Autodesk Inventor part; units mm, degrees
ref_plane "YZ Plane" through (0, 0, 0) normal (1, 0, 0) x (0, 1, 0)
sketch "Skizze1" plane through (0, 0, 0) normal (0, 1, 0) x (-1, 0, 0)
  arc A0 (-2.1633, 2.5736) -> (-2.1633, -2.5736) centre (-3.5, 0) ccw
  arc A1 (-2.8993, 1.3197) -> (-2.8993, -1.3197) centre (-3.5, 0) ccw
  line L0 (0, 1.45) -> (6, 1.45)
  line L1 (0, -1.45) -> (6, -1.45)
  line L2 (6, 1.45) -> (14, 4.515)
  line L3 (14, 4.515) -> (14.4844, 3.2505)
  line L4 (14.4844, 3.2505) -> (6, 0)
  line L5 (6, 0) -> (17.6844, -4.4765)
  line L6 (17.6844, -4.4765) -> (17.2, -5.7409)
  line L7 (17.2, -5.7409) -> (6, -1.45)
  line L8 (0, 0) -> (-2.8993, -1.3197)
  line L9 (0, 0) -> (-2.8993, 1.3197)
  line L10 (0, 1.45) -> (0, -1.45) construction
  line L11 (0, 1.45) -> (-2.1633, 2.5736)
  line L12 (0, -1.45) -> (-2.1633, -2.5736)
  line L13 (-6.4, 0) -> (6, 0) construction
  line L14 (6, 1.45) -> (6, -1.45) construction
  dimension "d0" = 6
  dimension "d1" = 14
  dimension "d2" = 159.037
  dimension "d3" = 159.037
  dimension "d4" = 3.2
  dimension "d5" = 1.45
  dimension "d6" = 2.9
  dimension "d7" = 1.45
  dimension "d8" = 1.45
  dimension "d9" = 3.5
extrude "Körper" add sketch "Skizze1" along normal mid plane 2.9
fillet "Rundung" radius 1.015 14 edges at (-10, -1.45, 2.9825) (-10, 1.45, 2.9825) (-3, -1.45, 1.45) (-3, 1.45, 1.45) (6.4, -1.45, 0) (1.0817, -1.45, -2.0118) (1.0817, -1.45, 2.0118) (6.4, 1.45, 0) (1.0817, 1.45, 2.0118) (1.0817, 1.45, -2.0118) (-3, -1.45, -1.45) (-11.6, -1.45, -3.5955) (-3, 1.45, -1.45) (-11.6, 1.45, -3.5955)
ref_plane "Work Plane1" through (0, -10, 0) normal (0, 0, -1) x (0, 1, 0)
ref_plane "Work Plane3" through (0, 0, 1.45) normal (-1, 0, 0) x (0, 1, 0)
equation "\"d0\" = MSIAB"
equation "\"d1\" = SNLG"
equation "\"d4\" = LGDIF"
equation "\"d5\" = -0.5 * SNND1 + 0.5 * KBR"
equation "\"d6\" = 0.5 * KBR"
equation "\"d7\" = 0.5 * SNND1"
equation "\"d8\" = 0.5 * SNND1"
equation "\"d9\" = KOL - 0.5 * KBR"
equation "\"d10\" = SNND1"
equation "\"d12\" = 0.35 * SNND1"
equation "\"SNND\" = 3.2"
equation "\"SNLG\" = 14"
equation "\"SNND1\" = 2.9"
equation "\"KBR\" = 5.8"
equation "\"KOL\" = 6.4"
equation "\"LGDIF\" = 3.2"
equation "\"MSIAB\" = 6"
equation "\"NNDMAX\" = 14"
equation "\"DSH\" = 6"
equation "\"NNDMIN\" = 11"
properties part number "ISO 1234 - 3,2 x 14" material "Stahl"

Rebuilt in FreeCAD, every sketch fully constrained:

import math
import FreeCAD as App
import Part
import Sketcher

V = App.Vector
Q = App.Units.Quantity


def edges_at(feature, points):
    """Names of the edges that pass closest to the given points."""
    edges = feature.Shape.Edges
    near = lambda p: min(range(len(edges)), key=lambda i: edges[i].distToShape(Part.Vertex(*p))[0])
    return sorted({f"Edge{near(p) + 1}" for p in points})

doc = App.newDocument("Part")
body = doc.addObject("PartDesign::Body", "Body")

sketch1 = doc.addObject("Sketcher::SketchObject", "Sketch")
body.addObject(sketch1)
sketch1.AttachmentSupport = (doc.XZ_Plane, [""])
sketch1.MapMode = "FlatFace"
sketch1.addGeometry(Part.LineSegment(V(0, 1.45, 0), V(2.1633, 2.5736, 0)), False)
sketch1.addGeometry(Part.ArcOfCircle(Part.Circle(V(3.5, 0, 0), V(0, 0, 1), 2.900032), math.radians(-117.446877), math.radians(117.446877)), False)
sketch1.addGeometry(Part.LineSegment(V(2.1633, -2.5736, 0), V(0, -1.45, 0)), False)
sketch1.addGeometry(Part.LineSegment(V(0, -1.45, 0), V(-6, -1.45, 0)), False)
sketch1.addGeometry(Part.LineSegment(V(-6, -1.45, 0), V(-17.2, -5.7409, 0)), False)
sketch1.addGeometry(Part.LineSegment(V(-17.2, -5.7409, 0), V(-17.6844, -4.4765, 0)), False)
sketch1.addGeometry(Part.LineSegment(V(-17.6844, -4.4765, 0), V(-6, 0, 0)), False)
sketch1.addGeometry(Part.LineSegment(V(-6, 0, 0), V(-14.4844, 3.2505, 0)), False)
sketch1.addGeometry(Part.LineSegment(V(-14.4844, 3.2505, 0), V(-14, 4.515, 0)), False)
sketch1.addGeometry(Part.LineSegment(V(-14, 4.515, 0), V(-6, 1.45, 0)), False)
sketch1.addGeometry(Part.LineSegment(V(-6, 1.45, 0), V(0, 1.45, 0)), False)
sketch1.addGeometry(Part.ArcOfCircle(Part.Circle(V(3.5, 0, 0), V(0, 0, 1), 1.449982), math.radians(-114.474041), math.radians(114.474041)), False)
sketch1.addGeometry(Part.LineSegment(V(2.8993, 1.3197, 0), V(0, 0, 0)), False)
sketch1.addGeometry(Part.LineSegment(V(0, 0, 0), V(2.8993, -1.3197, 0)), False)
sketch1.addConstraint(Sketcher.Constraint("Tangent", 0, 2, 1, 2))
sketch1.addConstraint(Sketcher.Constraint("Tangent", 1, 1, 2, 1))
sketch1.addConstraint(Sketcher.Constraint("Coincident", 2, 2, 3, 1))
sketch1.addConstraint(Sketcher.Constraint("Coincident", 3, 2, 4, 1))
sketch1.addConstraint(Sketcher.Constraint("Coincident", 4, 2, 5, 1))
sketch1.addConstraint(Sketcher.Constraint("Coincident", 5, 2, 6, 1))
sketch1.addConstraint(Sketcher.Constraint("Coincident", 6, 2, 7, 1))
sketch1.addConstraint(Sketcher.Constraint("Coincident", 7, 2, 8, 1))
sketch1.addConstraint(Sketcher.Constraint("Coincident", 8, 2, 9, 1))
sketch1.addConstraint(Sketcher.Constraint("Coincident", 9, 2, 10, 1))
sketch1.addConstraint(Sketcher.Constraint("Coincident", 10, 2, 0, 1))
sketch1.addConstraint(Sketcher.Constraint("Tangent", 11, 2, 12, 1))
sketch1.addConstraint(Sketcher.Constraint("Coincident", 12, 2, 13, 1))
sketch1.addConstraint(Sketcher.Constraint("Tangent", 13, 2, 11, 1))
sketch1.addConstraint(Sketcher.Constraint("Horizontal", 3))
sketch1.addConstraint(Sketcher.Constraint("Horizontal", 10))
sketch1.addConstraint(Sketcher.Constraint("Coincident", 12, 2, -1, 1))
sketch1.addConstraint(Sketcher.Constraint("Coincident", 11, 3, 1, 3))
sketch1.addConstraint(Sketcher.Constraint("Symmetric", 2, 2, 10, 2, -1, 1))
sketch1.addConstraint(Sketcher.Constraint("Symmetric", 0, 2, 1, 1, -1))
sketch1.addConstraint(Sketcher.Constraint("PointOnObject", 6, 2, -1))
sketch1.addConstraint(Sketcher.Constraint("Perpendicular", 4, 5))
sketch1.addConstraint(Sketcher.Constraint("Perpendicular", 5, 6))
sketch1.addConstraint(Sketcher.Constraint("Perpendicular", 7, 8))
sketch1.addConstraint(Sketcher.Constraint("Perpendicular", 8, 9))
sketch1.addConstraint(Sketcher.Constraint("Vertical", 3, 2, 6, 2))
sketch1.addConstraint(Sketcher.Constraint("Vertical", 6, 2, 9, 2))
sketch1.addConstraint(Sketcher.Constraint("Equal", 5, 8))
sketch1.addConstraint(Sketcher.Constraint("Radius", 1, 2.9))
sketch1.addConstraint(Sketcher.Constraint("DistanceX", 3, 2, 3, 1, 6.0))
sketch1.addConstraint(Sketcher.Constraint("Radius", 11, 1.45))
sketch1.addConstraint(Sketcher.Constraint("DistanceX", 8, 2, -1, 1, 14.0))
sketch1.addConstraint(Sketcher.Constraint("DistanceX", -1, 1, 1, 3, 3.5))
sketch1.addConstraint(Sketcher.Constraint("DistanceX", 5, 2, 7, 2, 3.2))
sketch1.addConstraint(Sketcher.Constraint("DistanceY", 3, 2, 9, 2, 2.9))
sketch1.addConstraint(Sketcher.Constraint("Angle", 8, Q("69.0393 deg")))
pad1 = doc.addObject("PartDesign::Pad", "Pad")
body.addObject(pad1)
pad1.Profile = sketch1
pad1.Length = 2.9
pad1.Midplane = True
doc.recompute()

fillet = doc.addObject("PartDesign::Fillet", "Fillet")
body.addObject(fillet)
fillet.Base = (pad1, edges_at(pad1, [
    (-10, -1.45, 2.982),
    (-10, 1.45, 2.982),
    (-3, -1.45, 1.45),
    (-3, 1.45, 1.45),
    (6.4, -1.45, 0),
    (1.082, -1.45, -2.012),
    (1.082, -1.45, 2.012),
    (6.4, 1.45, 0),
    (1.082, 1.45, 2.012),
    (1.082, 1.45, -2.012),
    (-3, -1.45, -1.45),
    (-11.6, -1.45, -3.595),
    (-3, 1.45, -1.45),
    (-11.6, 1.45, -3.595),
]))
fillet.Radius = 1.015

doc.recompute()
